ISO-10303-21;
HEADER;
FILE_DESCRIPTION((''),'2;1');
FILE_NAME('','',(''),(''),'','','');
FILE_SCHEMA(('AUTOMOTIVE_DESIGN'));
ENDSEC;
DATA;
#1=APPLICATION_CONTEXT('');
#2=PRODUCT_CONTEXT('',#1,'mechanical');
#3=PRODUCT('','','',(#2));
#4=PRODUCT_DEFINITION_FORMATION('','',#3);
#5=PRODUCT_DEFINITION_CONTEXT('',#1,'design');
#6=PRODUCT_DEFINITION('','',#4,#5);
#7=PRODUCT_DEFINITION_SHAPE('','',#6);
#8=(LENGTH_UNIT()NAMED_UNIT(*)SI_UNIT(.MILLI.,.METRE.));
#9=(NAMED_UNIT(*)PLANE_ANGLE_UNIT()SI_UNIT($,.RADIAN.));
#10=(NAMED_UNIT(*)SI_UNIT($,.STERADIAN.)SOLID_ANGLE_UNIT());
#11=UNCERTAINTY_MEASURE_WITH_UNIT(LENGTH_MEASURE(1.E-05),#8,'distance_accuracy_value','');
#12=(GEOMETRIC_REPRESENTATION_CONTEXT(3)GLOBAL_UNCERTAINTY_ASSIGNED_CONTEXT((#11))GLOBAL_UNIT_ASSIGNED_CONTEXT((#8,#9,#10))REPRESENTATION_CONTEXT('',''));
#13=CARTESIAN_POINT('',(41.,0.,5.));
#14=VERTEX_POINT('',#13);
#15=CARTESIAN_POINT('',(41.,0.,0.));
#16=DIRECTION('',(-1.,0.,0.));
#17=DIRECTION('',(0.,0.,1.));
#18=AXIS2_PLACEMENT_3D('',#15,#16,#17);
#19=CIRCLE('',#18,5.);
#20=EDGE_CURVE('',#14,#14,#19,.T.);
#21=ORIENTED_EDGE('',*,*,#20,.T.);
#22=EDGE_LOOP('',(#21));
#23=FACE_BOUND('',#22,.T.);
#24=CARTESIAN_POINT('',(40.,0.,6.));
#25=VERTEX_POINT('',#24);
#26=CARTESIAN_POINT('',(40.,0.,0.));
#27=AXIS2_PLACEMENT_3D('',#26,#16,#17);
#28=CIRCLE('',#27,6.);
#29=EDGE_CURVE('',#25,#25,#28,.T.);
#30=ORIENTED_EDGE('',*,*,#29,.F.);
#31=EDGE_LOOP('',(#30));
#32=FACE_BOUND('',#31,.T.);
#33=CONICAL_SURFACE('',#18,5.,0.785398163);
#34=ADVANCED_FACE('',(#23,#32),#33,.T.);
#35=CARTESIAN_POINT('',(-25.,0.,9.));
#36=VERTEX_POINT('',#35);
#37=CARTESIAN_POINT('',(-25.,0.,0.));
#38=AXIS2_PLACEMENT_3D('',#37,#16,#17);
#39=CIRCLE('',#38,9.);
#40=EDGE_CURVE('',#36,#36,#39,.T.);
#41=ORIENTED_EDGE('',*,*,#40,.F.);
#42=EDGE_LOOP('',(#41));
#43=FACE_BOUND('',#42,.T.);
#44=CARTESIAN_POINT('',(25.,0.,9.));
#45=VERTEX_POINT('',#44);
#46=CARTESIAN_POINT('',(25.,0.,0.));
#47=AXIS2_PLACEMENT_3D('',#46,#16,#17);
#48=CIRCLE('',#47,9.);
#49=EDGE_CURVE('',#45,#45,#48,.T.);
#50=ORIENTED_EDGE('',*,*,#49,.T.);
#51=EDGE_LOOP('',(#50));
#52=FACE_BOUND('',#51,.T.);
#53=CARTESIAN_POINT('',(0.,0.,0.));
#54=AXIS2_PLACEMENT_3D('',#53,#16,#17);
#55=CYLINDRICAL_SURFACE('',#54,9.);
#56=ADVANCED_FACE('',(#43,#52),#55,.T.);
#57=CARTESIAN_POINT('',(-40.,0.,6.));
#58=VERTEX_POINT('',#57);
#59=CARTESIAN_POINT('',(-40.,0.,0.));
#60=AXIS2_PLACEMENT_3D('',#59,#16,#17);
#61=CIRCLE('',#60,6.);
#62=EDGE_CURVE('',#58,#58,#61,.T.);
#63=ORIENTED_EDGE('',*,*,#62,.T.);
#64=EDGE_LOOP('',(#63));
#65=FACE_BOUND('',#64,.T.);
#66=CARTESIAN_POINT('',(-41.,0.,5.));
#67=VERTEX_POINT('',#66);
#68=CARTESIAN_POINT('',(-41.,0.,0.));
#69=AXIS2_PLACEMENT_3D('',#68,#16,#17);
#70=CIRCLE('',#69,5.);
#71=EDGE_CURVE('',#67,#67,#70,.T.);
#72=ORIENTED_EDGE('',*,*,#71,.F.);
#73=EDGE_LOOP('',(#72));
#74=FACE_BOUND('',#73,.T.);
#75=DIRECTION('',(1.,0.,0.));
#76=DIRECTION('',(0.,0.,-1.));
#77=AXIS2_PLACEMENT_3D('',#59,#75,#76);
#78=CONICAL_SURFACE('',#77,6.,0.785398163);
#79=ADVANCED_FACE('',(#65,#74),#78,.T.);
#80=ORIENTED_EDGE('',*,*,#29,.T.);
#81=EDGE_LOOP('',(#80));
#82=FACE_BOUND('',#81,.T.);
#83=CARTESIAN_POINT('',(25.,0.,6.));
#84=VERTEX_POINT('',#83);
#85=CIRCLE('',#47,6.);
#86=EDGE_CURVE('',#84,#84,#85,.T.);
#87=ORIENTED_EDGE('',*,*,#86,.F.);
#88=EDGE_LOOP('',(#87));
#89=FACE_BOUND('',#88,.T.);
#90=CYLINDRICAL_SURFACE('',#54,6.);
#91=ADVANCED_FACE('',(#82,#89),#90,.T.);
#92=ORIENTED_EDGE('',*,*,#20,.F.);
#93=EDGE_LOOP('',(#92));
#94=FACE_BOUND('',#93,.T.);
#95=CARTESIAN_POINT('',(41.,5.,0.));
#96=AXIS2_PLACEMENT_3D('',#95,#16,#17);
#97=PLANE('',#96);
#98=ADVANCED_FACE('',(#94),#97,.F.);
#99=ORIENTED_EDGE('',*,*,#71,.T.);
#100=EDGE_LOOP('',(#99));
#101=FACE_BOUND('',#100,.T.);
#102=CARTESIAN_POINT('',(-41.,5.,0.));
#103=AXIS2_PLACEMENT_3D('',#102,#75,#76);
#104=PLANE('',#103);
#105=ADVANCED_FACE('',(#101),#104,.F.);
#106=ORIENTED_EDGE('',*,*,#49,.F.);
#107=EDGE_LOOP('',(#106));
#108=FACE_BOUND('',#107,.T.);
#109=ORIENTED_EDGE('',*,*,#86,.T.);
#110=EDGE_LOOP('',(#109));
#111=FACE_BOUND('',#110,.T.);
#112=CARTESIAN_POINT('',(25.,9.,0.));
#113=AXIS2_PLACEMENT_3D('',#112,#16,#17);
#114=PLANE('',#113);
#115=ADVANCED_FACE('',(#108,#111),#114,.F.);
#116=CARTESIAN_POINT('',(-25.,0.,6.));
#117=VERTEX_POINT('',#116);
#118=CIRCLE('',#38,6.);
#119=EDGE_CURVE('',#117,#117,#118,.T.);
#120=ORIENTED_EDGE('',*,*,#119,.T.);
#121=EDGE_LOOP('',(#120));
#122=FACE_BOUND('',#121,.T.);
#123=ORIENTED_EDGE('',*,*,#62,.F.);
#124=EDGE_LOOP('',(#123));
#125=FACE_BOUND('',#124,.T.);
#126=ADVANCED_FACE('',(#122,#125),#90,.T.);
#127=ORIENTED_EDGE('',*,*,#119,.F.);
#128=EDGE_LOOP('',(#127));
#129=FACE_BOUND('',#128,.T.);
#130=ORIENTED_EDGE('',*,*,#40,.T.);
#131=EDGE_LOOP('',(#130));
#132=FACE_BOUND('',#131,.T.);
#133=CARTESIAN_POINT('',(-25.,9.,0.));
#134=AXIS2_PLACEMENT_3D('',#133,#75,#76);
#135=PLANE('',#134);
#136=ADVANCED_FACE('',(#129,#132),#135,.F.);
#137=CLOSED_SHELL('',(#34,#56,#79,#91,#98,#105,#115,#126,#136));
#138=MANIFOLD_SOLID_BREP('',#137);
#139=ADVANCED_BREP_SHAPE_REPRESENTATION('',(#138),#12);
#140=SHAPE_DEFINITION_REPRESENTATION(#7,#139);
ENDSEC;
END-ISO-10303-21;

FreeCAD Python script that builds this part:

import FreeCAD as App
import Part
import Sketcher
from FreeCAD import Vector


def add_polygon(sketch, points):
    """Adds a closed chain of lines whose ends are joined by coincident constraints."""
    first, n = sketch.GeometryCount, len(points)
    for a, b in zip(points, points[1:] + points[:1]):
        sketch.addGeometry(Part.LineSegment(App.Vector(*a, 0), App.Vector(*b, 0)), False)
    for i in range(n):
        sketch.addConstraint(Sketcher.Constraint("Coincident", first + i, 2, first + (i + 1) % n, 1))

doc = App.newDocument("Part")
body = doc.addObject("PartDesign::Body", "Body")

# Sketch on XY plane
sketch1 = body.newObject("Sketcher::SketchObject", "Sketch")
sketch1.AttachmentSupport = (doc.getObject("XY_Plane"), [""])
sketch1.MapMode = "FlatFace"
add_polygon(sketch1, [(41, 5), (40, 6), (25, 6), (25, 9), (-25, 9), (-25, 6), (-40, 6), (-41, 5), (-41, 0), (41, 0)])  # lines 0-9
sketch1.addConstraint([
    Sketcher.Constraint("Horizontal", 1),
    Sketcher.Constraint("Vertical", 2),
    Sketcher.Constraint("Horizontal", 3),
    Sketcher.Constraint("Vertical", 4),
    Sketcher.Constraint("Horizontal", 5),
    Sketcher.Constraint("Vertical", 7),
    Sketcher.Constraint("Horizontal", 8),
    Sketcher.Constraint("Vertical", 9),
    Sketcher.Constraint("Symmetric", 7, 2, 8, 2, -1, 1),
    Sketcher.Constraint("Symmetric", 1, 2, 4, 2, -2),
    Sketcher.Constraint("Perpendicular", 0, 6),
    Sketcher.Constraint("Horizontal", 6, 2, 9, 2),
    Sketcher.Constraint("Equal", 1, 5),
    Sketcher.Constraint("DistanceX", 1, 2, 1, 1, 15.0),
    Sketcher.Constraint("DistanceX", 3, 2, 3, 1, 50.0),
    Sketcher.Constraint("DistanceX", 8, 1, 8, 2, 82.0),
    Sketcher.Constraint("DistanceY", 2, 1, 2, 2, 3.0),
    Sketcher.Constraint("DistanceY", 7, 2, 7, 1, 5.0),
])
revolution = body.newObject("PartDesign::Revolution", "Revolution")
revolution.Profile = sketch1
revolution.ReferenceAxis = (sketch1, ["H_Axis"])
revolution.Angle = 360

doc.recompute()
